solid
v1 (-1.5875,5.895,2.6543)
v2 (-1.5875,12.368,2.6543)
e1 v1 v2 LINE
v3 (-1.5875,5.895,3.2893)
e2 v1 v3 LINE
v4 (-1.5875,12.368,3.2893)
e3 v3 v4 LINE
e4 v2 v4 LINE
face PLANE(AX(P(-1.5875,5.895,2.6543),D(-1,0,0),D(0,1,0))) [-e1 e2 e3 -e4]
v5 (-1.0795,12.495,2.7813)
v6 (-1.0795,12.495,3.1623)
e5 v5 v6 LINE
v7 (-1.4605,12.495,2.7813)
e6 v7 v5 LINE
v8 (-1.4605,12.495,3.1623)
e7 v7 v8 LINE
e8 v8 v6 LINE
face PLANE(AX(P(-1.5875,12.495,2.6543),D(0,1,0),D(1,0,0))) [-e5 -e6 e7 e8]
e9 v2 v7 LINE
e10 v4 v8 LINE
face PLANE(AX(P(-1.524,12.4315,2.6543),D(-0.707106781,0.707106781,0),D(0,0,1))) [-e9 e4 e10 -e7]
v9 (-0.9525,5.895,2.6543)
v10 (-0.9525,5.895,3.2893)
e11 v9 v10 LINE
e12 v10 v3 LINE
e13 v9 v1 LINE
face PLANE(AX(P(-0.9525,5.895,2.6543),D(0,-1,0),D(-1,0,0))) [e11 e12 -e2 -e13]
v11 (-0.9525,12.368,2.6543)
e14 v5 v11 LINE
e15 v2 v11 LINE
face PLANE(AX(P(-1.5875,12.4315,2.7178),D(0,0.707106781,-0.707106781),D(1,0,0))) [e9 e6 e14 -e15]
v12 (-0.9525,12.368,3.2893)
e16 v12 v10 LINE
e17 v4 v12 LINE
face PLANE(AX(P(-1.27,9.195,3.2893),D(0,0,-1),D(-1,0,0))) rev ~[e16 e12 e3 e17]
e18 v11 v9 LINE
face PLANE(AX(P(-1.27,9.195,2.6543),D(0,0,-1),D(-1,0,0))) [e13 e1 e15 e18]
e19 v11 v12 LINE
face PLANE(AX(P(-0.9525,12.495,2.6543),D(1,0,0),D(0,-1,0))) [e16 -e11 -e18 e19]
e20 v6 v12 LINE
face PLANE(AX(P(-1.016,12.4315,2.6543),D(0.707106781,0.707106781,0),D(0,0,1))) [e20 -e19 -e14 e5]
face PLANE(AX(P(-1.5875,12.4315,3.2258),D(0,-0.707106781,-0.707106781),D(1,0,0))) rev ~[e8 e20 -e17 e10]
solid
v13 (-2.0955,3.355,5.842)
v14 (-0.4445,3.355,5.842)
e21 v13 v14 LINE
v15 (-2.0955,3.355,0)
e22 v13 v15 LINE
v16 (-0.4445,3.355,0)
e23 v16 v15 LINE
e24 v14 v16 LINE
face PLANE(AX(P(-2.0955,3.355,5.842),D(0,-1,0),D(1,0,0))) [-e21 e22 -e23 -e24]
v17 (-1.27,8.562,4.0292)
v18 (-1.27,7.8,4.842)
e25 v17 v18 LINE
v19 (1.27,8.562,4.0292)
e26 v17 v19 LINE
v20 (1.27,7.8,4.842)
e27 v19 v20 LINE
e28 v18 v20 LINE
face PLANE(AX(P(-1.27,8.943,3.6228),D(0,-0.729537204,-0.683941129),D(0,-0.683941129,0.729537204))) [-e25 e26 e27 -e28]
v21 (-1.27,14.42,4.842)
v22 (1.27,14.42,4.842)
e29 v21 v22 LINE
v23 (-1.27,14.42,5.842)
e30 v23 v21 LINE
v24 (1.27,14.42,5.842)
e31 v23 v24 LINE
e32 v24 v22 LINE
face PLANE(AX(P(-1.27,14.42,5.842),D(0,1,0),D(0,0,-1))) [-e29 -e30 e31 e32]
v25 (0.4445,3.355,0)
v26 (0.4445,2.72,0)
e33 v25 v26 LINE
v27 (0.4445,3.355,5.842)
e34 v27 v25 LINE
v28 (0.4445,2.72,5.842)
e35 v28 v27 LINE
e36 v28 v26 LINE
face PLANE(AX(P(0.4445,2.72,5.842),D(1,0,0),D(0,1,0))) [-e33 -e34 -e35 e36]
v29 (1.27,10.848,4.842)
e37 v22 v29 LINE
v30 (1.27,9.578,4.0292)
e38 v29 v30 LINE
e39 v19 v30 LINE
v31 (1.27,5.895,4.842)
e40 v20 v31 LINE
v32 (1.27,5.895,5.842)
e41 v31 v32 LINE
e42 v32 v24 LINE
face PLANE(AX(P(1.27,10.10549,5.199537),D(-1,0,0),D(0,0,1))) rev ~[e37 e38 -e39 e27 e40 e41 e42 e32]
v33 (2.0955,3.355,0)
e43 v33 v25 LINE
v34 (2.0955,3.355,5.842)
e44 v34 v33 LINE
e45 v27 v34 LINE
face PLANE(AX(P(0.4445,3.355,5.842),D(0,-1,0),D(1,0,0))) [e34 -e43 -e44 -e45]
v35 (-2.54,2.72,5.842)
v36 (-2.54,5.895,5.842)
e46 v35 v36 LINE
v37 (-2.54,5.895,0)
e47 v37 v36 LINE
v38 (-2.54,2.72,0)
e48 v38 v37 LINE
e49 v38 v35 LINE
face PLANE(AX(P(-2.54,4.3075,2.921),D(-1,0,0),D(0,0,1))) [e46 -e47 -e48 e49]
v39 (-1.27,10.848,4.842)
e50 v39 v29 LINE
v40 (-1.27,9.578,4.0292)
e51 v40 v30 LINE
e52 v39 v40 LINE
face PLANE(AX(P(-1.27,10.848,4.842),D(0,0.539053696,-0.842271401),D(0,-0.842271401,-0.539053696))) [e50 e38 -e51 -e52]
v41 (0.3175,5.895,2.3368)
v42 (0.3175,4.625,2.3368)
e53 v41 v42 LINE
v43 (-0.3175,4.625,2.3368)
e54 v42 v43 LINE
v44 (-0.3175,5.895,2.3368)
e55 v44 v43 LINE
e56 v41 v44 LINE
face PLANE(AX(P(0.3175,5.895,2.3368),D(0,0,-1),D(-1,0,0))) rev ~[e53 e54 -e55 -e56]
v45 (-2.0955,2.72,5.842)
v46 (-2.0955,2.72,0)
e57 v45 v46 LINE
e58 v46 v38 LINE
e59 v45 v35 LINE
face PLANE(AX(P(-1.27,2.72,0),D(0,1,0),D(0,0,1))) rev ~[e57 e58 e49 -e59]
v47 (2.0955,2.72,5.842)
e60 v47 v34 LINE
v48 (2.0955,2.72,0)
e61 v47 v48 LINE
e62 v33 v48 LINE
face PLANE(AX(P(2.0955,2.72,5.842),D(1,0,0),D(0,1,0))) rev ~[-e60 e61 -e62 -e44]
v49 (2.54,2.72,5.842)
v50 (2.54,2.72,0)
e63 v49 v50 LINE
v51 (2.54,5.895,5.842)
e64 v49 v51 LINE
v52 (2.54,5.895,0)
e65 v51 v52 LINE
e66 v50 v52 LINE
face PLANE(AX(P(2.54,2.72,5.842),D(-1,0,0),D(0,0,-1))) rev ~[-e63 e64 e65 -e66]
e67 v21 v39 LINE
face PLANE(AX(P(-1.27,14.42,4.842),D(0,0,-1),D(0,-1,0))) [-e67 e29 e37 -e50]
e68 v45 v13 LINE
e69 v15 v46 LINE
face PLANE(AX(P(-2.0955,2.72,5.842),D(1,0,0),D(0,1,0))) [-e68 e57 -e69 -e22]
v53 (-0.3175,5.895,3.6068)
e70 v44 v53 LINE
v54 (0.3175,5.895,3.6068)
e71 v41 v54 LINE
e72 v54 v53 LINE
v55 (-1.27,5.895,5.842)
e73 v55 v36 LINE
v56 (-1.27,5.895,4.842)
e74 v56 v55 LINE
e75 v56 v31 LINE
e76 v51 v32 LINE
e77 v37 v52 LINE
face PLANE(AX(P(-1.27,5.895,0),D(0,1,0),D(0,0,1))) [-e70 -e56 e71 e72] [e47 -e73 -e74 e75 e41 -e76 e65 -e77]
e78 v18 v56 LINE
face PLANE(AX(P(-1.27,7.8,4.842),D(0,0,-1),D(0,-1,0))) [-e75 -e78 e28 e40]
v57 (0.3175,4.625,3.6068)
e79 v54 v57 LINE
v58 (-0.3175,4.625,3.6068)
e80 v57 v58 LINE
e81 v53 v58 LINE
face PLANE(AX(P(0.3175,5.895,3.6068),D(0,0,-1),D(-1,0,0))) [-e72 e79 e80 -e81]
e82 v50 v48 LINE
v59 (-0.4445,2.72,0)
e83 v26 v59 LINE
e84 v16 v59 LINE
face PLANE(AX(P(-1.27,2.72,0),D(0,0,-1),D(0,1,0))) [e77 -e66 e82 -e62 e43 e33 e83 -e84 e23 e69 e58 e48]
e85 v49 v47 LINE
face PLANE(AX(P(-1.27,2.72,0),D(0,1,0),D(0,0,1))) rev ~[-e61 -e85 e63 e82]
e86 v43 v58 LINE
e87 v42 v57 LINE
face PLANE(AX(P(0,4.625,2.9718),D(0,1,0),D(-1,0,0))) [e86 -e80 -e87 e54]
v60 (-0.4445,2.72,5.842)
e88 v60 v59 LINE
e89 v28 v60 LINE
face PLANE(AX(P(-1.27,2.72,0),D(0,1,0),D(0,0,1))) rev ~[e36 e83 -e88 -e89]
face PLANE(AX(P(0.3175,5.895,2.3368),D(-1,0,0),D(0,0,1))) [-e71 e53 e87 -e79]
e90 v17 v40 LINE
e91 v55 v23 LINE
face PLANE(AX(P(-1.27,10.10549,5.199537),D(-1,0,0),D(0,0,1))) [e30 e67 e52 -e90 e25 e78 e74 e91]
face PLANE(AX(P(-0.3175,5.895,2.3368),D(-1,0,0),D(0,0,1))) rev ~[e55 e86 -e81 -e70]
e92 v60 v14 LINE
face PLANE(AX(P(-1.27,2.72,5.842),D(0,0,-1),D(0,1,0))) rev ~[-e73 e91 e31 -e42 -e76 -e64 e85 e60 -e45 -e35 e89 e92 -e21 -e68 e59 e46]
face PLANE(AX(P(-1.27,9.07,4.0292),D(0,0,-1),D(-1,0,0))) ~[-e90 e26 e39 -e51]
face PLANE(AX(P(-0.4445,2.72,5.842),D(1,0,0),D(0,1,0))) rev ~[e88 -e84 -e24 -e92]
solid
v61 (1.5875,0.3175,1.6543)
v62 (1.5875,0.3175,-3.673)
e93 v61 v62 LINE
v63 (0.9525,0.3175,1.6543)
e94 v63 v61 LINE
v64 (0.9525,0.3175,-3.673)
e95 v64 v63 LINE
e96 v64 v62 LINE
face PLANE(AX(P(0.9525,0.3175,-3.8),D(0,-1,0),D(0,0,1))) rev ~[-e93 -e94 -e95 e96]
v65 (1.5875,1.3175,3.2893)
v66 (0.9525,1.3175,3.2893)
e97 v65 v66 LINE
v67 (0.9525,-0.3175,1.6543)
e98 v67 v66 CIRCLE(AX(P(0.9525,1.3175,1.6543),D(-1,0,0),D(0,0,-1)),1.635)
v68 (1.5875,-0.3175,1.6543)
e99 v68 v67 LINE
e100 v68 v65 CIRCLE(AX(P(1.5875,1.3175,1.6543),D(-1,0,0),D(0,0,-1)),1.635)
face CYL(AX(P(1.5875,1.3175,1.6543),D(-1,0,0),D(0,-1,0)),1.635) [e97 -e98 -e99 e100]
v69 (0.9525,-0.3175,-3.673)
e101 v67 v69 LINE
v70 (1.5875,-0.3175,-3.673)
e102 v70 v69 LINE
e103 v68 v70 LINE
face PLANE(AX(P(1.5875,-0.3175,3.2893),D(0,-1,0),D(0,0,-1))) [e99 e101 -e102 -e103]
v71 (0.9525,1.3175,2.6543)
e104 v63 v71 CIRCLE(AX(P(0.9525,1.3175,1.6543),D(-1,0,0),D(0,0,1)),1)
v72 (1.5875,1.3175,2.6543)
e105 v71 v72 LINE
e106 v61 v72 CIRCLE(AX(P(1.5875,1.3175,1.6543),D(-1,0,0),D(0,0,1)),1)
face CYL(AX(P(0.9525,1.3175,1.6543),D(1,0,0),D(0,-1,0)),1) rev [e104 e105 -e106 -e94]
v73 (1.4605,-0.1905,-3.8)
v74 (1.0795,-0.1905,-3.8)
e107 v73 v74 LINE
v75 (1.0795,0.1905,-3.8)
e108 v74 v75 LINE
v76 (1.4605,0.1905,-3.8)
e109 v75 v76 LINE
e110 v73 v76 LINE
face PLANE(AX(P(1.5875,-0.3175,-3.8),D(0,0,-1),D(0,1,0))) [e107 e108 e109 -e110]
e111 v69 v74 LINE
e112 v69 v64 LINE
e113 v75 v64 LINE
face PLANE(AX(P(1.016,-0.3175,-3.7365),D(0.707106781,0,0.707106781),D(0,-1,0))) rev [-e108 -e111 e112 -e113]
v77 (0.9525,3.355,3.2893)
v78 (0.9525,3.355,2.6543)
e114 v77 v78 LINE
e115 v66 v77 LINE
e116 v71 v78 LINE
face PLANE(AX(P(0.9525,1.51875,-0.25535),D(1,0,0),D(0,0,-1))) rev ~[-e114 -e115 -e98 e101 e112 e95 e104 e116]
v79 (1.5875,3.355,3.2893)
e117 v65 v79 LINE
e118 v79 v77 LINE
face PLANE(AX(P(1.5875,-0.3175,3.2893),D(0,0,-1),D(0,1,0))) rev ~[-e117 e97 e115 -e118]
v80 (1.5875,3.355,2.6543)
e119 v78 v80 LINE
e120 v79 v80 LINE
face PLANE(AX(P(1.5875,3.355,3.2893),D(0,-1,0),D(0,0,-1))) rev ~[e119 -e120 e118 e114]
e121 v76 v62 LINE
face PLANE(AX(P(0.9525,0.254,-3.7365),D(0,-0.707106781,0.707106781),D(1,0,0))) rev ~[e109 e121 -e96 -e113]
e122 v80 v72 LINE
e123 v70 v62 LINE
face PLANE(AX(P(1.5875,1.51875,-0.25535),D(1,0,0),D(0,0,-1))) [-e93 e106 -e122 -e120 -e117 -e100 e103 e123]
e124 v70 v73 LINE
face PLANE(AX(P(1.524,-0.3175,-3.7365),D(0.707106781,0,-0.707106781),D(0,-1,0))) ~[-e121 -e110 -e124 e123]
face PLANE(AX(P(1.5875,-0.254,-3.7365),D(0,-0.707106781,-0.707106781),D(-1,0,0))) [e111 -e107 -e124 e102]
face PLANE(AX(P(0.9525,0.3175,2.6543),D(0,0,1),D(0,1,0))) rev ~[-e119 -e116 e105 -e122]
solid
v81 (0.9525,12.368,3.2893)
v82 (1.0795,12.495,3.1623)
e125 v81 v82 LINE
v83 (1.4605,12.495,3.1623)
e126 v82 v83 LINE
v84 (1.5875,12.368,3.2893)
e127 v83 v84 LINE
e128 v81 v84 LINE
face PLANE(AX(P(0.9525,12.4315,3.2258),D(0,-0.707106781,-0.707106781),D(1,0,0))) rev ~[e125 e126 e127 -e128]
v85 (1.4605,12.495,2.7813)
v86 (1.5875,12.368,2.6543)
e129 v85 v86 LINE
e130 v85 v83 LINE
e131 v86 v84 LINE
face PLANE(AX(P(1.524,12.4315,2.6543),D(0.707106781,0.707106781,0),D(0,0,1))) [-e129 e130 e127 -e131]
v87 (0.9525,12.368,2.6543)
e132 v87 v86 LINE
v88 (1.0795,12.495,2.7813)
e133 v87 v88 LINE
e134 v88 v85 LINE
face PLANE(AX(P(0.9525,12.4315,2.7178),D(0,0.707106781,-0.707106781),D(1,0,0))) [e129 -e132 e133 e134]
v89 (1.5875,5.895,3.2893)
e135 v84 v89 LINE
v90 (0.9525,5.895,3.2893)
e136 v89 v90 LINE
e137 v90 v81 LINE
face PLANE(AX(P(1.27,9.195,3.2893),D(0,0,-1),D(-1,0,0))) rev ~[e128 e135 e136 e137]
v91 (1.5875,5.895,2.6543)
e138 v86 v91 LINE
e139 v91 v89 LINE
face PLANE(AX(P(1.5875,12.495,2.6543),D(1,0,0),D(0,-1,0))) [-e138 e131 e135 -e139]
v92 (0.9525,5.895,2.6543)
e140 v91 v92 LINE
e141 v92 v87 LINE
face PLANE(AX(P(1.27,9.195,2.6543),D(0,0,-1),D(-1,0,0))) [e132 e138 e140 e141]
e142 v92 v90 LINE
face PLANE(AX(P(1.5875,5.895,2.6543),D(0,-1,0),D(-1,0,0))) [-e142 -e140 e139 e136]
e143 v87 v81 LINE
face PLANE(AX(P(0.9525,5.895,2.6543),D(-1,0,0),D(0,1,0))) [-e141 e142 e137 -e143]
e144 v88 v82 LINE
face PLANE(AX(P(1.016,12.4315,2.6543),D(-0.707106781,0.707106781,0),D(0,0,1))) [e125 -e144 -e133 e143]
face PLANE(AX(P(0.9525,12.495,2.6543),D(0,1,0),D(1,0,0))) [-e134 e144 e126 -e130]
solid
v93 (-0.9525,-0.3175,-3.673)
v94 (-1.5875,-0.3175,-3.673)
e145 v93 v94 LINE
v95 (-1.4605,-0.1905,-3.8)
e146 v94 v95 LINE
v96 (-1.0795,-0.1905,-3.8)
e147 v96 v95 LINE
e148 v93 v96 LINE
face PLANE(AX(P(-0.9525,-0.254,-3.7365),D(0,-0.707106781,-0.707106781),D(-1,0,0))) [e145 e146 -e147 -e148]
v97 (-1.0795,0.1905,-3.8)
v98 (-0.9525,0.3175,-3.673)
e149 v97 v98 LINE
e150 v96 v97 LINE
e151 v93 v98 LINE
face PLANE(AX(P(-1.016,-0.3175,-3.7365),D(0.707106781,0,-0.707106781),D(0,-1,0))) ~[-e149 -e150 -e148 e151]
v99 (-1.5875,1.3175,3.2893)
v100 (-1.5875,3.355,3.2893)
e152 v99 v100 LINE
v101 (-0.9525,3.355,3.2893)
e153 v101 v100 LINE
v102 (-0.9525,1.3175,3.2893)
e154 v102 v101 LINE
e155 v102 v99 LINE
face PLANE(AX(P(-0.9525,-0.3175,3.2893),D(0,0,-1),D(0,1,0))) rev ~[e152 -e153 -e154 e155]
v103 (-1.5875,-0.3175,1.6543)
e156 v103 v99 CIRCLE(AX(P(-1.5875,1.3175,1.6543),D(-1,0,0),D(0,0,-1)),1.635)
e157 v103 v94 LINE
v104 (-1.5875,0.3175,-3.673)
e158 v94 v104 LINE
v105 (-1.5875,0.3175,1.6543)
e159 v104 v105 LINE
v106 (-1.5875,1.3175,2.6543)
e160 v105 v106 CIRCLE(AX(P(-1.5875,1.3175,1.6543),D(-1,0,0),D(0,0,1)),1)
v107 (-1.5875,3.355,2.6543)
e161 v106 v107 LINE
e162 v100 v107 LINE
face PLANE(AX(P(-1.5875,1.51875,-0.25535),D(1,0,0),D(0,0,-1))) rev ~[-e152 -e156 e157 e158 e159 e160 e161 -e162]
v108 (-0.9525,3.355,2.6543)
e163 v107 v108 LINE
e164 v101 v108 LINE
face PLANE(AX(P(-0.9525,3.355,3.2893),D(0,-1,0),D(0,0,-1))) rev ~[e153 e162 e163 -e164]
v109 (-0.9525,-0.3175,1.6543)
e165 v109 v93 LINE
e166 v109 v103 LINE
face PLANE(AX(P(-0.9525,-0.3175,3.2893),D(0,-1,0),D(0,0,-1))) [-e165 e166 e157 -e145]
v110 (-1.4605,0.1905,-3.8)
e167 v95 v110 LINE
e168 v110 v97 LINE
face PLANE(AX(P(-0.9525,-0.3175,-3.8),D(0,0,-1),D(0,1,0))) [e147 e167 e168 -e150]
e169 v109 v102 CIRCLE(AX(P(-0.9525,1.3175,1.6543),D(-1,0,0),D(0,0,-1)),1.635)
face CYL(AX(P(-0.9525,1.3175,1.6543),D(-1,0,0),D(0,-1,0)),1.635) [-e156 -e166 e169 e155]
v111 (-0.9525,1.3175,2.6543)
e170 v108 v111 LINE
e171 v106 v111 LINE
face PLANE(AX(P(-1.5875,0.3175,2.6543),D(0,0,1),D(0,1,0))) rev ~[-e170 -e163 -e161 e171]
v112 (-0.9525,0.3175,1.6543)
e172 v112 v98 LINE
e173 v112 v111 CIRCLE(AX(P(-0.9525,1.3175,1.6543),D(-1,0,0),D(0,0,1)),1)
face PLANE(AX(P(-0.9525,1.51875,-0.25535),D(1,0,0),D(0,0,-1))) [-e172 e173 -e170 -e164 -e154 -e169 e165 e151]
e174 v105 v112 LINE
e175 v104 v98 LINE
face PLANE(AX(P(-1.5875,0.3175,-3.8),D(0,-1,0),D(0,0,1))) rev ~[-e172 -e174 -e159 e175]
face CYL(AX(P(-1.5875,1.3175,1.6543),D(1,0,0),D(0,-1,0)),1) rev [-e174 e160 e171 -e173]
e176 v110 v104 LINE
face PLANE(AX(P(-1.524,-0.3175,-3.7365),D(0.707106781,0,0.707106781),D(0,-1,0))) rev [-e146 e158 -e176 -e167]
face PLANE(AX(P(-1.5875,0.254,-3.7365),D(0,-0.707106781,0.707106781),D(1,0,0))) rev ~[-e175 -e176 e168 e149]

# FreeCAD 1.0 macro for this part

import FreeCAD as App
import Part
import Sketcher
Q = App.Units.Quantity


def edges_at(feature, points):
    """Names of the edges that pass closest to the given points."""
    edges = feature.Shape.Edges
    near = lambda p: min(range(len(edges)), key=lambda i: edges[i].distToShape(Part.Vertex(*p))[0])
    return sorted({f"Edge{near(p) + 1}" for p in points})

doc = App.newDocument("Part")
body = doc.addObject("PartDesign::Body", "Body")

# Sketch on YZ plane
sketch1 = body.newObject("Sketcher::SketchObject", "Sketch")
sketch1.AttachmentSupport = (doc.getObject("YZ_Plane"), [""])
sketch1.MapMode = "FlatFace"
sketch1.AttachmentOffset = App.Placement(App.Vector(0, 0, 0.0625 * 25.4), App.Rotation())
sketch1.addGeometry([
    Part.LineSegment(App.Vector(3.4, 3.3, 0), App.Vector(-0.3, 3.3, 0)),
    Part.LineSegment(App.Vector(-0.3, 3.3, 0), App.Vector(-0.3, -3.8, 0)),
    Part.LineSegment(App.Vector(-0.3, -3.8, 0), App.Vector(3.4, -3.8, 0)),
    Part.LineSegment(App.Vector(3.4, -3.8, 0), App.Vector(3.4, 3.3, 0)),
], False)
sketch1.addConstraint([
    Sketcher.Constraint("Coincident", 0, 2, 1, 1),
    Sketcher.Constraint("Coincident", 1, 2, 2, 1),
    Sketcher.Constraint("Coincident", 2, 2, 3, 1),
    Sketcher.Constraint("Coincident", 3, 2, 0, 1),
    Sketcher.Constraint("Horizontal", 0),
    Sketcher.Constraint("Vertical", 1),
    Sketcher.Constraint("Horizontal", 2),
    Sketcher.Constraint("Vertical", 3),
    Sketcher.Constraint("DistanceX", 0, 2, 0, 1, Q("3.6725 mm")),
    Sketcher.Constraint("DistanceY", 1, 2, 1, 1, Q("7.0893 mm")),
    Sketcher.Constraint("DistanceX", 0, 2, -1, 1, Q("0.0125 in")),
    Sketcher.Constraint("DistanceY", -1, 1, 0, 2, Q("0.1295 in")),
])
pad1 = body.newObject("PartDesign::Pad", "Pad")
pad1.Profile = sketch1
pad1.Length = Q("0.025 in")
pad1.Reversed = True

# Sketch on YZ plane
sketch2 = body.newObject("Sketcher::SketchObject", "Sketch001")
sketch2.AttachmentSupport = (doc.getObject("YZ_Plane"), [""])
sketch2.MapMode = "FlatFace"
sketch2.AttachmentOffset = App.Placement(App.Vector(0, 0, 0.0375 * 25.4), App.Rotation())
sketch2.addGeometry([
    Part.LineSegment(App.Vector(3.4, -3.8, 0), App.Vector(0.3, -3.8, 0)),
    Part.LineSegment(App.Vector(0.3, -3.8, 0), App.Vector(0.3, 2.7, 0)),
    Part.LineSegment(App.Vector(0.3, 2.7, 0), App.Vector(3.4, 2.7, 0)),
    Part.LineSegment(App.Vector(3.4, 2.7, 0), App.Vector(3.4, -3.8, 0)),
], False)
sketch2.addConstraint([
    Sketcher.Constraint("Coincident", 0, 2, 1, 1),
    Sketcher.Constraint("Coincident", 1, 2, 2, 1),
    Sketcher.Constraint("Coincident", 2, 2, 3, 1),
    Sketcher.Constraint("Coincident", 3, 2, 0, 1),
    Sketcher.Constraint("Horizontal", 0),
    Sketcher.Constraint("Vertical", 1),
    Sketcher.Constraint("Horizontal", 2),
    Sketcher.Constraint("Vertical", 3),
    Sketcher.Constraint("DistanceX", 0, 2, 0, 1, Q("3.0375 mm")),
    Sketcher.Constraint("DistanceY", 1, 1, 1, 2, Q("6.4543 mm")),
    Sketcher.Constraint("DistanceX", -1, 1, 0, 2, Q("0.0125 in")),
    Sketcher.Constraint("DistanceY", -1, 1, 1, 2, Q("0.1045 in")),
])
pocket1 = body.newObject("PartDesign::Pocket", "Pocket")
pocket1.Profile = sketch2
pocket1.Type = "ThroughAll"
pocket1.Reversed = True
doc.recompute()

chamfer = body.newObject("PartDesign::Chamfer", "Chamfer")
chamfer.Base = (pocket1, edges_at(pocket1, [
    (1.27, 0.318, -3.8),
    (1.587, 0, -3.8),
    (1.27, -0.317, -3.8),
    (0.953, 0, -3.8),
]))
chamfer.Size = Q("0.005 in")
doc.recompute()

fillet = body.newObject("PartDesign::Fillet", "Fillet")
fillet.Base = (chamfer, edges_at(chamfer, [(1.27, 0.318, 2.654)]))
fillet.Radius = 1
doc.recompute()

fillet2 = body.newObject("PartDesign::Fillet", "Fillet001")
fillet2.Base = (fillet, edges_at(fillet, [(1.27, -0.317, 3.289)]))
fillet2.Radius = 1.635
body2 = doc.addObject("PartDesign::Body", "Body001")

# Sketch on YZ plane
sketch3 = body2.newObject("Sketcher::SketchObject", "Sketch002")
sketch3.AttachmentSupport = (doc.getObject("YZ_Plane001"), [""])
sketch3.MapMode = "FlatFace"
sketch3.AttachmentOffset = App.Placement(App.Vector(0, 0, -0.0375 * 25.4), App.Rotation())
sketch3.addGeometry([
    Part.LineSegment(App.Vector(3.4, 3.3, 0), App.Vector(-0.3, 3.3, 0)),
    Part.LineSegment(App.Vector(-0.3, 3.3, 0), App.Vector(-0.3, -3.8, 0)),
    Part.LineSegment(App.Vector(-0.3, -3.8, 0), App.Vector(3.4, -3.8, 0)),
    Part.LineSegment(App.Vector(3.4, -3.8, 0), App.Vector(3.4, 3.3, 0)),
], False)
sketch3.addConstraint([
    Sketcher.Constraint("Coincident", 0, 2, 1, 1),
    Sketcher.Constraint("Coincident", 1, 2, 2, 1),
    Sketcher.Constraint("Coincident", 2, 2, 3, 1),
    Sketcher.Constraint("Coincident", 3, 2, 0, 1),
    Sketcher.Constraint("Horizontal", 0),
    Sketcher.Constraint("Vertical", 1),
    Sketcher.Constraint("Horizontal", 2),
    Sketcher.Constraint("Vertical", 3),
    Sketcher.Constraint("DistanceX", 0, 2, 0, 1, Q("3.6725 mm")),
    Sketcher.Constraint("DistanceY", 1, 2, 1, 1, Q("7.0893 mm")),
    Sketcher.Constraint("DistanceX", 0, 2, -1, 1, Q("0.0125 in")),
    Sketcher.Constraint("DistanceY", -1, 1, 0, 2, Q("0.1295 in")),
])
pad2 = body2.newObject("PartDesign::Pad", "Pad001")
pad2.Profile = sketch3
pad2.Length = Q("0.025 in")
pad2.Reversed = True

# Sketch on YZ plane
sketch4 = body2.newObject("Sketcher::SketchObject", "Sketch003")
sketch4.AttachmentSupport = (doc.getObject("YZ_Plane001"), [""])
sketch4.MapMode = "FlatFace"
sketch4.AttachmentOffset = App.Placement(App.Vector(0, 0, -0.0625 * 25.4), App.Rotation())
sketch4.addGeometry([
    Part.LineSegment(App.Vector(3.4, -3.8, 0), App.Vector(0.3, -3.8, 0)),
    Part.LineSegment(App.Vector(0.3, -3.8, 0), App.Vector(0.3, 2.7, 0)),
    Part.LineSegment(App.Vector(0.3, 2.7, 0), App.Vector(3.4, 2.7, 0)),
    Part.LineSegment(App.Vector(3.4, 2.7, 0), App.Vector(3.4, -3.8, 0)),
], False)
sketch4.addConstraint([
    Sketcher.Constraint("Coincident", 0, 2, 1, 1),
    Sketcher.Constraint("Coincident", 1, 2, 2, 1),
    Sketcher.Constraint("Coincident", 2, 2, 3, 1),
    Sketcher.Constraint("Coincident", 3, 2, 0, 1),
    Sketcher.Constraint("Horizontal", 0),
    Sketcher.Constraint("Vertical", 1),
    Sketcher.Constraint("Horizontal", 2),
    Sketcher.Constraint("Vertical", 3),
    Sketcher.Constraint("DistanceX", 0, 2, 0, 1, Q("3.0375 mm")),
    Sketcher.Constraint("DistanceY", 1, 1, 1, 2, Q("6.4543 mm")),
    Sketcher.Constraint("DistanceX", -1, 1, 0, 2, Q("0.0125 in")),
    Sketcher.Constraint("DistanceY", -1, 1, 1, 2, Q("0.1045 in")),
])
pocket2 = body2.newObject("PartDesign::Pocket", "Pocket001")
pocket2.Profile = sketch4
pocket2.Type = "ThroughAll"
pocket2.Reversed = True
doc.recompute()

chamfer2 = body2.newObject("PartDesign::Chamfer", "Chamfer001")
chamfer2.Base = (pocket2, edges_at(pocket2, [
    (-1.27, 0.318, -3.8),
    (-0.953, 0, -3.8),
    (-1.27, -0.317, -3.8),
    (-1.587, 0, -3.8),
]))
chamfer2.Size = Q("0.005 in")
doc.recompute()

fillet3 = body2.newObject("PartDesign::Fillet", "Fillet002")
fillet3.Base = (chamfer2, edges_at(chamfer2, [(-1.27, 0.318, 2.654)]))
fillet3.Radius = 1
doc.recompute()

fillet4 = body2.newObject("PartDesign::Fillet", "Fillet003")
fillet4.Base = (fillet3, edges_at(fillet3, [(-1.27, -0.317, 3.289)]))
fillet4.Radius = 1.635
body3 = doc.addObject("PartDesign::Body", "Body002")

# Sketch on XY plane
sketch5 = body3.newObject("Sketcher::SketchObject", "Sketch004")
sketch5.AttachmentSupport = (doc.getObject("XY_Plane002"), [""])
sketch5.MapMode = "FlatFace"
sketch5.AttachmentOffset = App.Placement(App.Vector(0, 0, 0.1045 * 25.4), App.Rotation())
sketch5.addGeometry([
    Part.LineSegment(App.Vector(1, 5.9, 0), App.Vector(1, 12.5, 0)),
    Part.LineSegment(App.Vector(1, 12.5, 0), App.Vector(1.6, 12.5, 0)),
    Part.LineSegment(App.Vector(1.6, 12.5, 0), App.Vector(1.6, 5.9, 0)),
    Part.LineSegment(App.Vector(1.6, 5.9, 0), App.Vector(1, 5.9, 0)),
], False)
sketch5.addConstraint([
    Sketcher.Constraint("Coincident", 0, 2, 1, 1),
    Sketcher.Constraint("Coincident", 1, 2, 2, 1),
    Sketcher.Constraint("Coincident", 2, 2, 3, 1),
    Sketcher.Constraint("Coincident", 3, 2, 0, 1),
    Sketcher.Constraint("Vertical", 0),
    Sketcher.Constraint("Horizontal", 1),
    Sketcher.Constraint("Vertical", 2),
    Sketcher.Constraint("Horizontal", 3),
    Sketcher.Constraint("DistanceX", 1, 1, 1, 2, Q("0.025 in")),
    Sketcher.Constraint("DistanceX", -1, 1, 1, 2, Q("0.0625 in")),
    Sketcher.Constraint("DistanceY", 0, 1, 0, 2, Q("6.6 mm")),
    Sketcher.Constraint("DistanceY", -1, 1, 0, 2, Q("12.495 mm")),
])
pad3 = body3.newObject("PartDesign::Pad", "Pad002")
pad3.Profile = sketch5
pad3.Length = Q("0.025 in")
doc.recompute()

chamfer3 = body3.newObject("PartDesign::Chamfer", "Chamfer002")
chamfer3.Base = (pad3, edges_at(pad3, [
    (1.587, 12.495, 2.972),
    (0.953, 12.495, 2.972),
    (1.27, 12.495, 3.289),
    (1.27, 12.495, 2.654),
]))
chamfer3.Size = Q("0.005 in")
body4 = doc.addObject("PartDesign::Body", "Body003")

# Sketch on XY plane
sketch6 = body4.newObject("Sketcher::SketchObject", "Sketch005")
sketch6.AttachmentSupport = (doc.getObject("XY_Plane003"), [""])
sketch6.MapMode = "FlatFace"
sketch6.AttachmentOffset = App.Placement(App.Vector(0, 0, 0.1045 * 25.4), App.Rotation())
sketch6.addGeometry([
    Part.LineSegment(App.Vector(-1.6, 5.9, 0), App.Vector(-1.6, 12.5, 0)),
    Part.LineSegment(App.Vector(-1.6, 12.5, 0), App.Vector(-1, 12.5, 0)),
    Part.LineSegment(App.Vector(-1, 12.5, 0), App.Vector(-1, 5.9, 0)),
    Part.LineSegment(App.Vector(-1, 5.9, 0), App.Vector(-1.6, 5.9, 0)),
], False)
sketch6.addConstraint([
    Sketcher.Constraint("Coincident", 0, 2, 1, 1),
    Sketcher.Constraint("Coincident", 1, 2, 2, 1),
    Sketcher.Constraint("Coincident", 2, 2, 3, 1),
    Sketcher.Constraint("Coincident", 3, 2, 0, 1),
    Sketcher.Constraint("Vertical", 0),
    Sketcher.Constraint("Horizontal", 1),
    Sketcher.Constraint("Vertical", 2),
    Sketcher.Constraint("Horizontal", 3),
    Sketcher.Constraint("DistanceX", 1, 1, 1, 2, Q("0.025 in")),
    Sketcher.Constraint("DistanceX", 0, 2, -1, 1, Q("0.0625 in")),
    Sketcher.Constraint("DistanceY", 0, 1, 0, 2, Q("6.6 mm")),
    Sketcher.Constraint("DistanceY", -1, 1, 0, 2, Q("12.495 mm")),
])
pad4 = body4.newObject("PartDesign::Pad", "Pad003")
pad4.Profile = sketch6
pad4.Length = Q("0.025 in")
doc.recompute()

chamfer4 = body4.newObject("PartDesign::Chamfer", "Chamfer003")
chamfer4.Base = (pad4, edges_at(pad4, [
    (-0.953, 12.495, 2.972),
    (-1.587, 12.495, 2.972),
    (-1.27, 12.495, 3.289),
    (-1.27, 12.495, 2.654),
]))
chamfer4.Size = Q("0.005 in")
body5 = doc.addObject("PartDesign::Body", "Body004")

# Sketch on XZ plane
sketch7 = body5.newObject("Sketcher::SketchObject", "Sketch006")
sketch7.AttachmentSupport = (doc.getObject("XZ_Plane004"), [""])
sketch7.MapMode = "FlatFace"
sketch7.AttachmentOffset = App.Placement(App.Vector(0, 0, -2.72), App.Rotation())
sketch7.addGeometry([
    Part.LineSegment(App.Vector(2.5, 0, 0), App.Vector(2.5, 5.8, 0)),
    Part.LineSegment(App.Vector(2.5, 5.8, 0), App.Vector(-1.3, 5.8, 0)),
    Part.LineSegment(App.Vector(-1.3, 5.8, 0), App.Vector(-1.3, 0, 0)),
    Part.LineSegment(App.Vector(-1.3, 0, 0), App.Vector(2.5, 0, 0)),
], False)
sketch7.addConstraint([
    Sketcher.Constraint("Coincident", 0, 2, 1, 1),
    Sketcher.Constraint("Coincident", 1, 2, 2, 1),
    Sketcher.Constraint("Coincident", 2, 2, 3, 1),
    Sketcher.Constraint("Coincident", 3, 2, 0, 1),
    Sketcher.Constraint("Vertical", 0),
    Sketcher.Constraint("Horizontal", 1),
    Sketcher.Constraint("Vertical", 2),
    Sketcher.Constraint("Horizontal", 3),
    Sketcher.Constraint("PointOnObject", 2, 2, -1),
    Sketcher.Constraint("DistanceX", 1, 2, 1, 1, Q("0.15 in")),
    Sketcher.Constraint("DistanceY", 0, 1, 0, 2, Q("0.23 in")),
    Sketcher.Constraint("DistanceX", -1, 1, 0, 2, Q("0.1 in")),
])
pad5 = body5.newObject("PartDesign::Pad", "Pad004")
pad5.Profile = sketch7
pad5.Length = Q("0.125 in")
pad5.Reversed = True

# Sketch on YZ plane
sketch8 = body5.newObject("Sketcher::SketchObject", "Sketch007")
sketch8.AttachmentSupport = (doc.getObject("YZ_Plane004"), [""])
sketch8.MapMode = "FlatFace"
sketch8.AttachmentOffset = App.Placement(App.Vector(0, 0, -0.05 * 25.4), App.Rotation())
sketch8.addGeometry([
    Part.LineSegment(App.Vector(7.8, 4.8, 0), App.Vector(5.9, 4.8, 0)),  # 0
    Part.LineSegment(App.Vector(5.9, 4.8, 0), App.Vector(5.9, 5.8, 0)),  # 1
    Part.LineSegment(App.Vector(5.9, 5.8, 0), App.Vector(14.4, 5.8, 0)),  # 2
    Part.LineSegment(App.Vector(14.4, 5.8, 0), App.Vector(14.4, 4.8, 0)),  # 3
    Part.LineSegment(App.Vector(14.4, 4.8, 0), App.Vector(10.8, 4.8, 0)),  # 4
    Part.LineSegment(App.Vector(10.8, 4.8, 0), App.Vector(8.9, 3.6, 0)),  # 5
    Part.LineSegment(App.Vector(8.9, 3.6, 0), App.Vector(7.8, 4.8, 0)),  # 6
], False)
sketch8.addConstraint([
    Sketcher.Constraint("Coincident", 0, 2, 1, 1),
    Sketcher.Constraint("Coincident", 1, 2, 2, 1),
    Sketcher.Constraint("Coincident", 2, 2, 3, 1),
    Sketcher.Constraint("Coincident", 3, 2, 4, 1),
    Sketcher.Constraint("Coincident", 4, 2, 5, 1),
    Sketcher.Constraint("Coincident", 5, 2, 6, 1),
    Sketcher.Constraint("Coincident", 6, 2, 0, 1),
    Sketcher.Constraint("Horizontal", 0),
    Sketcher.Constraint("Vertical", 1),
    Sketcher.Constraint("Horizontal", 2),
    Sketcher.Constraint("Vertical", 3),
    Sketcher.Constraint("Horizontal", 4),
    Sketcher.Constraint("Horizontal", 0, 2, 3, 2),
    Sketcher.Constraint("DistanceX", 0, 2, 0, 1, Q("0.075 in")),
    Sketcher.Constraint("DistanceY", -1, 1, 1, 2, Q("0.23 in")),
    Sketcher.Constraint("DistanceX", 0, 2, 5, 2, Q("0.12 in")),
    Sketcher.Constraint("DistanceX", 6, 2, 4, 2, Q("0.12 in")),
    Sketcher.Constraint("DistanceY", 5, 2, 4, 2, Q("0.048 in")),
    Sketcher.Constraint("DistanceX", 2, 1, 2, 2, Q("8.525 mm")),
    Sketcher.Constraint("DistanceY", 1, 1, 1, 2, Q("1 mm")),
    Sketcher.Constraint("DistanceX", -1, 1, 0, 2, Q("5.895 mm")),
])
pad6 = body5.newObject("PartDesign::Pad", "Pad005")
pad6.Profile = sketch8
pad6.Length = Q("0.1 in")

# Sketch on YZ plane
sketch9 = body5.newObject("Sketcher::SketchObject", "Sketch008")
sketch9.AttachmentSupport = (doc.getObject("YZ_Plane004"), [""])
sketch9.MapMode = "FlatFace"
sketch9.AttachmentOffset = App.Placement(App.Vector(0, 0, -0.05 * 25.4), App.Rotation())
sketch9.addGeometry([
    Part.LineSegment(App.Vector(5.9, 0, 0), App.Vector(2.7, 0, 0)),
    Part.LineSegment(App.Vector(2.7, 0, 0), App.Vector(2.7, 5.8, 0)),
    Part.LineSegment(App.Vector(2.7, 5.8, 0), App.Vector(5.9, 5.8, 0)),
    Part.LineSegment(App.Vector(5.9, 5.8, 0), App.Vector(5.9, 0, 0)),
], False)
sketch9.addConstraint([
    Sketcher.Constraint("Coincident", 0, 2, 1, 1),
    Sketcher.Constraint("Coincident", 1, 2, 2, 1),
    Sketcher.Constraint("Coincident", 2, 2, 3, 1),
    Sketcher.Constraint("Coincident", 3, 2, 0, 1),
    Sketcher.Constraint("Horizontal", 0),
    Sketcher.Constraint("Vertical", 1),
    Sketcher.Constraint("Horizontal", 2),
    Sketcher.Constraint("Vertical", 3),
    Sketcher.Constraint("PointOnObject", 0, 2, -1),
    Sketcher.Constraint("DistanceY", 1, 1, 1, 2, Q("0.23 in")),
    Sketcher.Constraint("DistanceX", 0, 2, 0, 1, Q("0.125 in")),
    Sketcher.Constraint("DistanceX", -1, 1, 0, 2, Q("2.72 mm")),
])
pad7 = body5.newObject("PartDesign::Pad", "Pad006")
pad7.Profile = sketch9
pad7.Length = Q("0.05 in")
pad7.Reversed = True

# Sketch on XY plane
sketch10 = body5.newObject("Sketcher::SketchObject", "Sketch009")
sketch10.AttachmentSupport = (doc.getObject("XY_Plane004"), [""])
sketch10.MapMode = "FlatFace"
sketch10.AttachmentOffset = App.Placement(App.Vector(0, 0, 0.23 * 25.4), App.Rotation())
sketch10.addGeometry([
    Part.LineSegment(App.Vector(0.4, 3.4, 0), App.Vector(0.4, 2.7, 0)),
    Part.LineSegment(App.Vector(0.4, 2.7, 0), App.Vector(2.1, 2.7, 0)),
    Part.LineSegment(App.Vector(2.1, 2.7, 0), App.Vector(2.1, 3.4, 0)),
    Part.LineSegment(App.Vector(2.1, 3.4, 0), App.Vector(0.4, 3.4, 0)),
], False)
sketch10.addConstraint([
    Sketcher.Constraint("Coincident", 0, 2, 1, 1),
    Sketcher.Constraint("Coincident", 1, 2, 2, 1),
    Sketcher.Constraint("Coincident", 2, 2, 3, 1),
    Sketcher.Constraint("Coincident", 3, 2, 0, 1),
    Sketcher.Constraint("Vertical", 0),
    Sketcher.Constraint("Horizontal", 1),
    Sketcher.Constraint("Vertical", 2),
    Sketcher.Constraint("Horizontal", 3),
    Sketcher.Constraint("DistanceX", 1, 1, 1, 2, Q("0.065 in")),
    Sketcher.Constraint("DistanceY", 0, 2, 0, 1, Q("0.025 in")),
    Sketcher.Constraint("DistanceX", -1, 1, 0, 2, Q("0.0175 in")),
    Sketcher.Constraint("DistanceY", -1, 1, 0, 2, Q("2.72 mm")),
])
pocket3 = body5.newObject("PartDesign::Pocket", "Pocket002")
pocket3.Profile = sketch10
pocket3.Type = "ThroughAll"

# Sketch on XY plane
sketch11 = body5.newObject("Sketcher::SketchObject", "Sketch010")
sketch11.AttachmentSupport = (doc.getObject("XY_Plane004"), [""])
sketch11.MapMode = "FlatFace"
sketch11.AttachmentOffset = App.Placement(App.Vector(0, 0, 0.23 * 25.4), App.Rotation())
sketch11.addGeometry([
    Part.LineSegment(App.Vector(-2.1, 3.4, 0), App.Vector(-2.1, 2.7, 0)),
    Part.LineSegment(App.Vector(-2.1, 2.7, 0), App.Vector(-0.4, 2.7, 0)),
    Part.LineSegment(App.Vector(-0.4, 2.7, 0), App.Vector(-0.4, 3.4, 0)),
    Part.LineSegment(App.Vector(-0.4, 3.4, 0), App.Vector(-2.1, 3.4, 0)),
], False)
sketch11.addConstraint([
    Sketcher.Constraint("Coincident", 0, 2, 1, 1),
    Sketcher.Constraint("Coincident", 1, 2, 2, 1),
    Sketcher.Constraint("Coincident", 2, 2, 3, 1),
    Sketcher.Constraint("Coincident", 3, 2, 0, 1),
    Sketcher.Constraint("Vertical", 0),
    Sketcher.Constraint("Horizontal", 1),
    Sketcher.Constraint("Vertical", 2),
    Sketcher.Constraint("Horizontal", 3),
    Sketcher.Constraint("DistanceX", 1, 1, 1, 2, Q("0.065 in")),
    Sketcher.Constraint("DistanceY", 0, 2, 0, 1, Q("0.025 in")),
    Sketcher.Constraint("DistanceX", 0, 2, -1, 1, Q("0.0825 in")),
    Sketcher.Constraint("DistanceY", -1, 1, 0, 2, Q("2.72 mm")),
])
pocket4 = body5.newObject("PartDesign::Pocket", "Pocket003")
pocket4.Profile = sketch11
pocket4.Type = "ThroughAll"

# Sketch on XZ plane
sketch12 = body5.newObject("Sketcher::SketchObject", "Sketch011")
sketch12.AttachmentSupport = (doc.getObject("XZ_Plane004"), [""])
sketch12.MapMode = "FlatFace"
sketch12.AttachmentOffset = App.Placement(App.Vector(0, 0, -5.895), App.Rotation())
sketch12.addGeometry([
    Part.LineSegment(App.Vector(0.3, 3.6, 0), App.Vector(0.3, 2.3, 0)),
    Part.LineSegment(App.Vector(0.3, 2.3, 0), App.Vector(-0.3, 2.3, 0)),
    Part.LineSegment(App.Vector(-0.3, 2.3, 0), App.Vector(-0.3, 3.6, 0)),
    Part.LineSegment(App.Vector(-0.3, 3.6, 0), App.Vector(0.3, 3.6, 0)),
], False)
sketch12.addConstraint([
    Sketcher.Constraint("Coincident", 0, 2, 1, 1),
    Sketcher.Constraint("Coincident", 1, 2, 2, 1),
    Sketcher.Constraint("Coincident", 2, 2, 3, 1),
    Sketcher.Constraint("Coincident", 3, 2, 0, 1),
    Sketcher.Constraint("Vertical", 0),
    Sketcher.Constraint("Horizontal", 1),
    Sketcher.Constraint("Vertical", 2),
    Sketcher.Constraint("Horizontal", 3),
    Sketcher.Constraint("DistanceY", 0, 2, 0, 1, Q("0.05 in")),
    Sketcher.Constraint("DistanceX", 1, 2, 1, 1, Q("0.025 in")),
    Sketcher.Constraint("DistanceY", -1, 1, 0, 2, Q("0.092 in")),
    Sketcher.Constraint("DistanceX", -1, 1, 0, 2, Q("0.0125 in")),
])
pocket5 = body5.newObject("PartDesign::Pocket", "Pocket004")
pocket5.Profile = sketch12
pocket5.Length = Q("0.05 in")
pocket5.Reversed = True
doc.recompute()

chamfer5 = body5.newObject("PartDesign::Chamfer", "Chamfer004")
chamfer5.Base = (pocket5, edges_at(pocket5, [(0, 8.943, 3.623)]))
chamfer5.ChamferType = "Two distances"
chamfer5.Size = 0.557065
chamfer5.Size2 = 0.753914

doc.recompute()
